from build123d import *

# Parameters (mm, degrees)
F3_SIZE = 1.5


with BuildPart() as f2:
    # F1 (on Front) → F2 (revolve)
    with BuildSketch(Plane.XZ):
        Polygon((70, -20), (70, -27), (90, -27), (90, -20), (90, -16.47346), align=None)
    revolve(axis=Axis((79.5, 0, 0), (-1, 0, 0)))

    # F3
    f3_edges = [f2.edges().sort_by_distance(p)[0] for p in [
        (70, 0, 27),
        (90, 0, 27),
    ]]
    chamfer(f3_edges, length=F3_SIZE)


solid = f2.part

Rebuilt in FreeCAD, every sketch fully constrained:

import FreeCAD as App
import Part
import Sketcher

V = App.Vector
Q = App.Units.Quantity


def edges_at(feature, points):
    """Names of the edges that pass closest to the given points."""
    edges = feature.Shape.Edges
    near = lambda p: min(range(len(edges)), key=lambda i: edges[i].distToShape(Part.Vertex(*p))[0])
    return sorted({f"Edge{near(p) + 1}" for p in points})


def add_polygon(sketch, points):
    """Adds a closed chain of lines whose ends are joined by coincident constraints."""
    first, n = sketch.GeometryCount, len(points)
    for a, b in zip(points, points[1:] + points[:1]):
        sketch.addGeometry(Part.LineSegment(App.Vector(*a, 0), App.Vector(*b, 0)), False)
    for i in range(n):
        sketch.addConstraint(Sketcher.Constraint("Coincident", first + i, 2, first + (i + 1) % n, 1))

doc = App.newDocument("Part")
params = doc.addObject("Spreadsheet::Sheet", "Params")
for row, (alias, value) in enumerate([
    ("sketch1_width", "20 mm"),
    ("sketch1_height", "7 mm"),
    ("revolution_angle", "360 deg"),
    ("chamfer_size", "1.5 mm"),
], start=1):
    params.set(f"A{row}", alias)
    params.set(f"B{row}", "=" + value)
    params.setAlias(f"B{row}", alias)

body = doc.addObject("PartDesign::Body", "Body")

sketch1 = doc.addObject("Sketcher::SketchObject", "Sketch")
body.addObject(sketch1)
sketch1.AttachmentSupport = (doc.XZ_Plane, [""])
sketch1.MapMode = "FlatFace"
add_polygon(sketch1, [(70, -20), (70, -27), (90, -27), (90, -16.47346)])
sketch1.addConstraint([
    Sketcher.Constraint("Vertical", 0),
    Sketcher.Constraint("Horizontal", 1),
    Sketcher.Constraint("Vertical", 2),
    Sketcher.Constraint("DistanceX", 1, 1, 1, 2, Q("20 mm")),
    Sketcher.Constraint("DistanceY", 0, 2, 0, 1, Q("7 mm")),
    Sketcher.Constraint("Angle", 3, Q("-169.999999 deg")),
    Sketcher.Constraint("DistanceX", -1, 1, 0, 2, Q("70 mm")),
    Sketcher.Constraint("DistanceY", 0, 2, -1, 1, Q("27 mm")),
])
sketch1.setExpression("Constraints[7]", "Params.sketch1_width")
sketch1.setExpression("Constraints[8]", "Params.sketch1_height")
revolution = doc.addObject("PartDesign::Revolution", "Revolution")
body.addObject(revolution)
revolution.Profile = sketch1
revolution.ReferenceAxis = (sketch1, ["H_Axis"])
revolution.setExpression("Angle", "Params.revolution_angle")
doc.recompute()

chamfer = doc.addObject("PartDesign::Chamfer", "Chamfer")
body.addObject(chamfer)
chamfer.Base = (revolution, edges_at(revolution, [(70, 0, 27), (90, 0, 27)]))
chamfer.setExpression("Size", "Params.chamfer_size")

doc.recompute()
